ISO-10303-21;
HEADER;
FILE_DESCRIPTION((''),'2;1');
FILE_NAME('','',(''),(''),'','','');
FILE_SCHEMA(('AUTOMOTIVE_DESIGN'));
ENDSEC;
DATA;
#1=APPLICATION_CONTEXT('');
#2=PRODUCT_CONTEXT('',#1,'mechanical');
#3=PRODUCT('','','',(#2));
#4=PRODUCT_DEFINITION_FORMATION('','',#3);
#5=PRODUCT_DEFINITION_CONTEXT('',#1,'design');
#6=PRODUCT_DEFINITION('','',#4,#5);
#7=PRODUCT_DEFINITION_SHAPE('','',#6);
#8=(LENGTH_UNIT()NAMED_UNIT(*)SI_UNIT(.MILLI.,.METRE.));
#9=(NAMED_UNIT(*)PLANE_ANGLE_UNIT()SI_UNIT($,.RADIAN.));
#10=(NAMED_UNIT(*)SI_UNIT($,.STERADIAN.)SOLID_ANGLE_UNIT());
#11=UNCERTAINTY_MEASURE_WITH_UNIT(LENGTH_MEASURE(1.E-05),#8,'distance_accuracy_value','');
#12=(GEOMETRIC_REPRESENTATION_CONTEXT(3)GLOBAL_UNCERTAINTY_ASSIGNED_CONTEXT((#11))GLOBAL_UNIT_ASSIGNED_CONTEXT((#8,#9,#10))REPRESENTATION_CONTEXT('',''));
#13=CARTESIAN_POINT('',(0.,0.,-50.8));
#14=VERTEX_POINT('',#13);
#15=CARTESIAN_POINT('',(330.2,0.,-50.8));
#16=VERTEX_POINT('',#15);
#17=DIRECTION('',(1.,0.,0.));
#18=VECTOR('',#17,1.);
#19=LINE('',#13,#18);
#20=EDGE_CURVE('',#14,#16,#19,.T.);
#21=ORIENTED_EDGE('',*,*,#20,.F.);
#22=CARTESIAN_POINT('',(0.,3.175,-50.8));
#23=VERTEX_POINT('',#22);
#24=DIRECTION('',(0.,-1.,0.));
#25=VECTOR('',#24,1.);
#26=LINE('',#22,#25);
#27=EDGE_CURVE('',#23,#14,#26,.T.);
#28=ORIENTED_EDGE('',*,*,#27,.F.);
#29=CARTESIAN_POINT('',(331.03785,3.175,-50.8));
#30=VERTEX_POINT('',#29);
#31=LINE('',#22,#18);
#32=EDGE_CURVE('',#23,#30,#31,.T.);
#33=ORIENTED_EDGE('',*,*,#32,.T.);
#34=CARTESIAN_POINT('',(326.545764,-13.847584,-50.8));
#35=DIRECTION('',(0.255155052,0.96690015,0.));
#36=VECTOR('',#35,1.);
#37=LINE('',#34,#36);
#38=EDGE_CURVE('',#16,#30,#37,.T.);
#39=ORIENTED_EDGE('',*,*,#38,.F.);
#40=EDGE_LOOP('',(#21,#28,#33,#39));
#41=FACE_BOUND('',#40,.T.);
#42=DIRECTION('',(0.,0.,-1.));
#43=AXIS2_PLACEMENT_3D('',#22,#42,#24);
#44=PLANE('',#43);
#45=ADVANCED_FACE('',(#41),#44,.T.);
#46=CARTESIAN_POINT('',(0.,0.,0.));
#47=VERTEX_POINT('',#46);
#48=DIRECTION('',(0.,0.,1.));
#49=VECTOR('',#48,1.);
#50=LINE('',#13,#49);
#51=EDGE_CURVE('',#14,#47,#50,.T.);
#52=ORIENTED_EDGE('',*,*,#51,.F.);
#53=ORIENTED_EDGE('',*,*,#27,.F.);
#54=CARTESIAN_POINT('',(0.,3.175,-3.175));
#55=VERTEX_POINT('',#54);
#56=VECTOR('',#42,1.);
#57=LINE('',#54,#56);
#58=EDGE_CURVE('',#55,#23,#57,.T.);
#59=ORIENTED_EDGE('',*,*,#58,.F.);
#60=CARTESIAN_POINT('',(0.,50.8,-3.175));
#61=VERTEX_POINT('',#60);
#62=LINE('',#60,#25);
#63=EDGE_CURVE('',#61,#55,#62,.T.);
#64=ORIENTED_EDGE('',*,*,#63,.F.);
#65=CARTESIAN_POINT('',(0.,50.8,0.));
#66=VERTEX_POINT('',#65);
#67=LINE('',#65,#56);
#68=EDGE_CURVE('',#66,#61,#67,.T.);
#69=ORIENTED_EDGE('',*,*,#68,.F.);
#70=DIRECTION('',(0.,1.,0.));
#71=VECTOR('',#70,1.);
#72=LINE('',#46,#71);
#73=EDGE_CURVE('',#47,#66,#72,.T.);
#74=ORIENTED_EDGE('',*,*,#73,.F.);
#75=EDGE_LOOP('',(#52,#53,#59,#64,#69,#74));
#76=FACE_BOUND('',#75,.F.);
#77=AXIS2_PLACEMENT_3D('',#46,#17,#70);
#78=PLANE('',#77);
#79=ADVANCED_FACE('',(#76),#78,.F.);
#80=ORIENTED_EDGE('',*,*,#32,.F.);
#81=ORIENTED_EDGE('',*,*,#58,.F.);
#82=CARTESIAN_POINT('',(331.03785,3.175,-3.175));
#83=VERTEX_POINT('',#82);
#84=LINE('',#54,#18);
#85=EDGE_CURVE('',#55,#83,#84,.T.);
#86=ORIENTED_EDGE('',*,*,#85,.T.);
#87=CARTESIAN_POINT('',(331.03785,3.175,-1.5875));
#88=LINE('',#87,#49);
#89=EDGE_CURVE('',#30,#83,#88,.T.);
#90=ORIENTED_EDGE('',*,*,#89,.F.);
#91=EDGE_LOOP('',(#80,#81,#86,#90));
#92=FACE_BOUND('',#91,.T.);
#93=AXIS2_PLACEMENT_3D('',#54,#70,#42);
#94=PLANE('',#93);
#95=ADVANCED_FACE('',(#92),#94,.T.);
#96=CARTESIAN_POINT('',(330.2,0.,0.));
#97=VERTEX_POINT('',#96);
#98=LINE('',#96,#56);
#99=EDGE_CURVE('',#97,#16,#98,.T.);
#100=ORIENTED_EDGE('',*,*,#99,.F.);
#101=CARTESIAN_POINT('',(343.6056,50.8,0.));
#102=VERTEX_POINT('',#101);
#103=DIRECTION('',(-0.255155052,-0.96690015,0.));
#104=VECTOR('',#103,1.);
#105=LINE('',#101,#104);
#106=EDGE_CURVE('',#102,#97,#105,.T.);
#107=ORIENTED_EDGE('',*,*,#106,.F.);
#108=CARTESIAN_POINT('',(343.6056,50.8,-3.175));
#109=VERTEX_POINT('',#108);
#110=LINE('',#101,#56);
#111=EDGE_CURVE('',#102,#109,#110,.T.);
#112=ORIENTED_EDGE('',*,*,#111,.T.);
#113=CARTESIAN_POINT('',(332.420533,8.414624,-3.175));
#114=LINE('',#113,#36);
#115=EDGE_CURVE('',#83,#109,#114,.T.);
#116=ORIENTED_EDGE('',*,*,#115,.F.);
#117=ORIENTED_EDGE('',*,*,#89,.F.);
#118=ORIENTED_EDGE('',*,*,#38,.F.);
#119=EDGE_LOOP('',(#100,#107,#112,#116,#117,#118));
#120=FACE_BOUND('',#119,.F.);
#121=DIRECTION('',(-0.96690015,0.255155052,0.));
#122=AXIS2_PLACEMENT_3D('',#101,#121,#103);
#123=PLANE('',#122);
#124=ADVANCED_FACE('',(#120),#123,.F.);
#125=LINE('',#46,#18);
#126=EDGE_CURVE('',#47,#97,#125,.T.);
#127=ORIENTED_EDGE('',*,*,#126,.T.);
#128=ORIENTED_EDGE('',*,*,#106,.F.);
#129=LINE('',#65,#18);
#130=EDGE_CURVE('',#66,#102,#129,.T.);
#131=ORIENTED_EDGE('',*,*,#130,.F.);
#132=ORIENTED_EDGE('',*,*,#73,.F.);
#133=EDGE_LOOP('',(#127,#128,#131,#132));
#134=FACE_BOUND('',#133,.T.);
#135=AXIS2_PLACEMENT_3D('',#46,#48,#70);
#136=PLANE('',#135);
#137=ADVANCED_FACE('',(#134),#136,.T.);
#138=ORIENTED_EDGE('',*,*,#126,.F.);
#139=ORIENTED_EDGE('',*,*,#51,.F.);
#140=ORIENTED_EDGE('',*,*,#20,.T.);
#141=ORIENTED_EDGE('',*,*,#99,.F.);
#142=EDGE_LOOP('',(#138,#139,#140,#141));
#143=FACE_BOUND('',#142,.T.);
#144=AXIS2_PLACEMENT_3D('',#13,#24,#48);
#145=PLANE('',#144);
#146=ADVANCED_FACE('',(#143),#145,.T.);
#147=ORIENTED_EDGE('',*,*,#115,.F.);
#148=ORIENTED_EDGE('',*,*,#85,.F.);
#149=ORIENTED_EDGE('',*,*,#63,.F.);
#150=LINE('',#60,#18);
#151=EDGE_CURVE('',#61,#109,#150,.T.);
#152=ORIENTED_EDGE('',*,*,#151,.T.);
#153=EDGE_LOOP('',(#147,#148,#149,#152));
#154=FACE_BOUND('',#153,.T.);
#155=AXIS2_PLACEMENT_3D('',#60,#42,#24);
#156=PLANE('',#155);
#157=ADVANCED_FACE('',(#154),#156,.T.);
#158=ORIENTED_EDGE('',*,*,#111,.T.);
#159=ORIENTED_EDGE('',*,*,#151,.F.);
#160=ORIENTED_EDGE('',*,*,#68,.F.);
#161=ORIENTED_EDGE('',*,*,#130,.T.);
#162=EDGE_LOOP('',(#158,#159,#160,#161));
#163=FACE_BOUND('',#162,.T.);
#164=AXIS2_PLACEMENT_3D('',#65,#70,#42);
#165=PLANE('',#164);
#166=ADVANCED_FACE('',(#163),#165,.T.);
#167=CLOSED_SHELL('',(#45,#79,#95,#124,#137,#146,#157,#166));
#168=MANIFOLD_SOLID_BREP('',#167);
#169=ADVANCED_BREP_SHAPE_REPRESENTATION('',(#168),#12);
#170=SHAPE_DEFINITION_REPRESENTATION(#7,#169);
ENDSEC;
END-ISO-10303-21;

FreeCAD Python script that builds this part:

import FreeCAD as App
import Part
import Sketcher

V = App.Vector
Q = App.Units.Quantity

doc = App.newDocument("Part")
body = doc.addObject("PartDesign::Body", "Body")

# Sketch on YZ plane
sketch1 = doc.addObject("Sketcher::SketchObject", "Sketch")
body.addObject(sketch1)
sketch1.AttachmentSupport = (doc.YZ_Plane, [""])
sketch1.MapMode = "FlatFace"
sketch1.addGeometry([
    Part.LineSegment(V(50.8, 0, 0), V(0, 0, 0)),  # 0
    Part.LineSegment(V(0, 0, 0), V(0, -50.8, 0)),  # 1
    Part.LineSegment(V(0, -50.8, 0), V(3.2, -50.8, 0)),  # 2
    Part.LineSegment(V(3.2, -50.8, 0), V(3.2, -3.2, 0)),  # 3
    Part.LineSegment(V(3.2, -3.2, 0), V(50.8, -3.2, 0)),  # 4
    Part.LineSegment(V(50.8, -3.2, 0), V(50.8, 0, 0)),  # 5
], False)
sketch1.addConstraint([
    Sketcher.Constraint("Coincident", 0, 2, 1, 1),
    Sketcher.Constraint("Coincident", 1, 2, 2, 1),
    Sketcher.Constraint("Coincident", 2, 2, 3, 1),
    Sketcher.Constraint("Coincident", 3, 2, 4, 1),
    Sketcher.Constraint("Coincident", 4, 2, 5, 1),
    Sketcher.Constraint("Coincident", 5, 2, 0, 1),
    Sketcher.Constraint("Horizontal", 0),
    Sketcher.Constraint("Vertical", 1),
    Sketcher.Constraint("Horizontal", 2),
    Sketcher.Constraint("Vertical", 3),
    Sketcher.Constraint("Horizontal", 4),
    Sketcher.Constraint("Vertical", 5),
    Sketcher.Constraint("Coincident", 0, 2, -1, 1),
    Sketcher.Constraint("Equal", 0, 1),
    Sketcher.Constraint("Equal", 4, 3),
    Sketcher.Constraint("DistanceX", 0, 2, 0, 1, Q("2 in")),
    Sketcher.Constraint("DistanceX", 2, 1, 2, 2, Q("0.125 in")),
])
pad1 = doc.addObject("PartDesign::Pad", "Pad")
body.addObject(pad1)
pad1.Profile = sketch1
pad1.Length = Q("15 in")

# Sketch on XY plane
sketch2 = doc.addObject("Sketcher::SketchObject", "Sketch001")
body.addObject(sketch2)
sketch2.AttachmentSupport = (doc.XY_Plane, [""])
sketch2.MapMode = "FlatFace"
sketch2.addGeometry([
    Part.LineSegment(V(330, 0, 0), V(381, 0, 0)),
    Part.LineSegment(V(381, 0, 0), V(381, 51, 0)),
    Part.LineSegment(V(381, 51, 0), V(344, 51, 0)),
    Part.LineSegment(V(344, 51, 0), V(330, 0, 0)),
], False)
sketch2.addConstraint([
    Sketcher.Constraint("Coincident", 0, 2, 1, 1),
    Sketcher.Constraint("Coincident", 1, 2, 2, 1),
    Sketcher.Constraint("Coincident", 2, 2, 3, 1),
    Sketcher.Constraint("Coincident", 3, 2, 0, 1),
    Sketcher.Constraint("Horizontal", 0),
    Sketcher.Constraint("Vertical", 1),
    Sketcher.Constraint("Horizontal", 2),
    Sketcher.Constraint("PointOnObject", 0, 2, -1),
    Sketcher.Constraint("Equal", 0, 1),
    Sketcher.Constraint("DistanceX", 0, 1, 0, 2, Q("2 in")),
    Sketcher.Constraint("DistanceX", -1, 1, 0, 2, Q("15 in")),
    Sketcher.Constraint("DistanceX", 2, 2, 2, 1, Q("37.3944 mm")),
])
pocket1 = doc.addObject("PartDesign::Pocket", "Pocket")
body.addObject(pocket1)
pocket1.Profile = sketch2
pocket1.Length = Q("15 in")

doc.recompute()
